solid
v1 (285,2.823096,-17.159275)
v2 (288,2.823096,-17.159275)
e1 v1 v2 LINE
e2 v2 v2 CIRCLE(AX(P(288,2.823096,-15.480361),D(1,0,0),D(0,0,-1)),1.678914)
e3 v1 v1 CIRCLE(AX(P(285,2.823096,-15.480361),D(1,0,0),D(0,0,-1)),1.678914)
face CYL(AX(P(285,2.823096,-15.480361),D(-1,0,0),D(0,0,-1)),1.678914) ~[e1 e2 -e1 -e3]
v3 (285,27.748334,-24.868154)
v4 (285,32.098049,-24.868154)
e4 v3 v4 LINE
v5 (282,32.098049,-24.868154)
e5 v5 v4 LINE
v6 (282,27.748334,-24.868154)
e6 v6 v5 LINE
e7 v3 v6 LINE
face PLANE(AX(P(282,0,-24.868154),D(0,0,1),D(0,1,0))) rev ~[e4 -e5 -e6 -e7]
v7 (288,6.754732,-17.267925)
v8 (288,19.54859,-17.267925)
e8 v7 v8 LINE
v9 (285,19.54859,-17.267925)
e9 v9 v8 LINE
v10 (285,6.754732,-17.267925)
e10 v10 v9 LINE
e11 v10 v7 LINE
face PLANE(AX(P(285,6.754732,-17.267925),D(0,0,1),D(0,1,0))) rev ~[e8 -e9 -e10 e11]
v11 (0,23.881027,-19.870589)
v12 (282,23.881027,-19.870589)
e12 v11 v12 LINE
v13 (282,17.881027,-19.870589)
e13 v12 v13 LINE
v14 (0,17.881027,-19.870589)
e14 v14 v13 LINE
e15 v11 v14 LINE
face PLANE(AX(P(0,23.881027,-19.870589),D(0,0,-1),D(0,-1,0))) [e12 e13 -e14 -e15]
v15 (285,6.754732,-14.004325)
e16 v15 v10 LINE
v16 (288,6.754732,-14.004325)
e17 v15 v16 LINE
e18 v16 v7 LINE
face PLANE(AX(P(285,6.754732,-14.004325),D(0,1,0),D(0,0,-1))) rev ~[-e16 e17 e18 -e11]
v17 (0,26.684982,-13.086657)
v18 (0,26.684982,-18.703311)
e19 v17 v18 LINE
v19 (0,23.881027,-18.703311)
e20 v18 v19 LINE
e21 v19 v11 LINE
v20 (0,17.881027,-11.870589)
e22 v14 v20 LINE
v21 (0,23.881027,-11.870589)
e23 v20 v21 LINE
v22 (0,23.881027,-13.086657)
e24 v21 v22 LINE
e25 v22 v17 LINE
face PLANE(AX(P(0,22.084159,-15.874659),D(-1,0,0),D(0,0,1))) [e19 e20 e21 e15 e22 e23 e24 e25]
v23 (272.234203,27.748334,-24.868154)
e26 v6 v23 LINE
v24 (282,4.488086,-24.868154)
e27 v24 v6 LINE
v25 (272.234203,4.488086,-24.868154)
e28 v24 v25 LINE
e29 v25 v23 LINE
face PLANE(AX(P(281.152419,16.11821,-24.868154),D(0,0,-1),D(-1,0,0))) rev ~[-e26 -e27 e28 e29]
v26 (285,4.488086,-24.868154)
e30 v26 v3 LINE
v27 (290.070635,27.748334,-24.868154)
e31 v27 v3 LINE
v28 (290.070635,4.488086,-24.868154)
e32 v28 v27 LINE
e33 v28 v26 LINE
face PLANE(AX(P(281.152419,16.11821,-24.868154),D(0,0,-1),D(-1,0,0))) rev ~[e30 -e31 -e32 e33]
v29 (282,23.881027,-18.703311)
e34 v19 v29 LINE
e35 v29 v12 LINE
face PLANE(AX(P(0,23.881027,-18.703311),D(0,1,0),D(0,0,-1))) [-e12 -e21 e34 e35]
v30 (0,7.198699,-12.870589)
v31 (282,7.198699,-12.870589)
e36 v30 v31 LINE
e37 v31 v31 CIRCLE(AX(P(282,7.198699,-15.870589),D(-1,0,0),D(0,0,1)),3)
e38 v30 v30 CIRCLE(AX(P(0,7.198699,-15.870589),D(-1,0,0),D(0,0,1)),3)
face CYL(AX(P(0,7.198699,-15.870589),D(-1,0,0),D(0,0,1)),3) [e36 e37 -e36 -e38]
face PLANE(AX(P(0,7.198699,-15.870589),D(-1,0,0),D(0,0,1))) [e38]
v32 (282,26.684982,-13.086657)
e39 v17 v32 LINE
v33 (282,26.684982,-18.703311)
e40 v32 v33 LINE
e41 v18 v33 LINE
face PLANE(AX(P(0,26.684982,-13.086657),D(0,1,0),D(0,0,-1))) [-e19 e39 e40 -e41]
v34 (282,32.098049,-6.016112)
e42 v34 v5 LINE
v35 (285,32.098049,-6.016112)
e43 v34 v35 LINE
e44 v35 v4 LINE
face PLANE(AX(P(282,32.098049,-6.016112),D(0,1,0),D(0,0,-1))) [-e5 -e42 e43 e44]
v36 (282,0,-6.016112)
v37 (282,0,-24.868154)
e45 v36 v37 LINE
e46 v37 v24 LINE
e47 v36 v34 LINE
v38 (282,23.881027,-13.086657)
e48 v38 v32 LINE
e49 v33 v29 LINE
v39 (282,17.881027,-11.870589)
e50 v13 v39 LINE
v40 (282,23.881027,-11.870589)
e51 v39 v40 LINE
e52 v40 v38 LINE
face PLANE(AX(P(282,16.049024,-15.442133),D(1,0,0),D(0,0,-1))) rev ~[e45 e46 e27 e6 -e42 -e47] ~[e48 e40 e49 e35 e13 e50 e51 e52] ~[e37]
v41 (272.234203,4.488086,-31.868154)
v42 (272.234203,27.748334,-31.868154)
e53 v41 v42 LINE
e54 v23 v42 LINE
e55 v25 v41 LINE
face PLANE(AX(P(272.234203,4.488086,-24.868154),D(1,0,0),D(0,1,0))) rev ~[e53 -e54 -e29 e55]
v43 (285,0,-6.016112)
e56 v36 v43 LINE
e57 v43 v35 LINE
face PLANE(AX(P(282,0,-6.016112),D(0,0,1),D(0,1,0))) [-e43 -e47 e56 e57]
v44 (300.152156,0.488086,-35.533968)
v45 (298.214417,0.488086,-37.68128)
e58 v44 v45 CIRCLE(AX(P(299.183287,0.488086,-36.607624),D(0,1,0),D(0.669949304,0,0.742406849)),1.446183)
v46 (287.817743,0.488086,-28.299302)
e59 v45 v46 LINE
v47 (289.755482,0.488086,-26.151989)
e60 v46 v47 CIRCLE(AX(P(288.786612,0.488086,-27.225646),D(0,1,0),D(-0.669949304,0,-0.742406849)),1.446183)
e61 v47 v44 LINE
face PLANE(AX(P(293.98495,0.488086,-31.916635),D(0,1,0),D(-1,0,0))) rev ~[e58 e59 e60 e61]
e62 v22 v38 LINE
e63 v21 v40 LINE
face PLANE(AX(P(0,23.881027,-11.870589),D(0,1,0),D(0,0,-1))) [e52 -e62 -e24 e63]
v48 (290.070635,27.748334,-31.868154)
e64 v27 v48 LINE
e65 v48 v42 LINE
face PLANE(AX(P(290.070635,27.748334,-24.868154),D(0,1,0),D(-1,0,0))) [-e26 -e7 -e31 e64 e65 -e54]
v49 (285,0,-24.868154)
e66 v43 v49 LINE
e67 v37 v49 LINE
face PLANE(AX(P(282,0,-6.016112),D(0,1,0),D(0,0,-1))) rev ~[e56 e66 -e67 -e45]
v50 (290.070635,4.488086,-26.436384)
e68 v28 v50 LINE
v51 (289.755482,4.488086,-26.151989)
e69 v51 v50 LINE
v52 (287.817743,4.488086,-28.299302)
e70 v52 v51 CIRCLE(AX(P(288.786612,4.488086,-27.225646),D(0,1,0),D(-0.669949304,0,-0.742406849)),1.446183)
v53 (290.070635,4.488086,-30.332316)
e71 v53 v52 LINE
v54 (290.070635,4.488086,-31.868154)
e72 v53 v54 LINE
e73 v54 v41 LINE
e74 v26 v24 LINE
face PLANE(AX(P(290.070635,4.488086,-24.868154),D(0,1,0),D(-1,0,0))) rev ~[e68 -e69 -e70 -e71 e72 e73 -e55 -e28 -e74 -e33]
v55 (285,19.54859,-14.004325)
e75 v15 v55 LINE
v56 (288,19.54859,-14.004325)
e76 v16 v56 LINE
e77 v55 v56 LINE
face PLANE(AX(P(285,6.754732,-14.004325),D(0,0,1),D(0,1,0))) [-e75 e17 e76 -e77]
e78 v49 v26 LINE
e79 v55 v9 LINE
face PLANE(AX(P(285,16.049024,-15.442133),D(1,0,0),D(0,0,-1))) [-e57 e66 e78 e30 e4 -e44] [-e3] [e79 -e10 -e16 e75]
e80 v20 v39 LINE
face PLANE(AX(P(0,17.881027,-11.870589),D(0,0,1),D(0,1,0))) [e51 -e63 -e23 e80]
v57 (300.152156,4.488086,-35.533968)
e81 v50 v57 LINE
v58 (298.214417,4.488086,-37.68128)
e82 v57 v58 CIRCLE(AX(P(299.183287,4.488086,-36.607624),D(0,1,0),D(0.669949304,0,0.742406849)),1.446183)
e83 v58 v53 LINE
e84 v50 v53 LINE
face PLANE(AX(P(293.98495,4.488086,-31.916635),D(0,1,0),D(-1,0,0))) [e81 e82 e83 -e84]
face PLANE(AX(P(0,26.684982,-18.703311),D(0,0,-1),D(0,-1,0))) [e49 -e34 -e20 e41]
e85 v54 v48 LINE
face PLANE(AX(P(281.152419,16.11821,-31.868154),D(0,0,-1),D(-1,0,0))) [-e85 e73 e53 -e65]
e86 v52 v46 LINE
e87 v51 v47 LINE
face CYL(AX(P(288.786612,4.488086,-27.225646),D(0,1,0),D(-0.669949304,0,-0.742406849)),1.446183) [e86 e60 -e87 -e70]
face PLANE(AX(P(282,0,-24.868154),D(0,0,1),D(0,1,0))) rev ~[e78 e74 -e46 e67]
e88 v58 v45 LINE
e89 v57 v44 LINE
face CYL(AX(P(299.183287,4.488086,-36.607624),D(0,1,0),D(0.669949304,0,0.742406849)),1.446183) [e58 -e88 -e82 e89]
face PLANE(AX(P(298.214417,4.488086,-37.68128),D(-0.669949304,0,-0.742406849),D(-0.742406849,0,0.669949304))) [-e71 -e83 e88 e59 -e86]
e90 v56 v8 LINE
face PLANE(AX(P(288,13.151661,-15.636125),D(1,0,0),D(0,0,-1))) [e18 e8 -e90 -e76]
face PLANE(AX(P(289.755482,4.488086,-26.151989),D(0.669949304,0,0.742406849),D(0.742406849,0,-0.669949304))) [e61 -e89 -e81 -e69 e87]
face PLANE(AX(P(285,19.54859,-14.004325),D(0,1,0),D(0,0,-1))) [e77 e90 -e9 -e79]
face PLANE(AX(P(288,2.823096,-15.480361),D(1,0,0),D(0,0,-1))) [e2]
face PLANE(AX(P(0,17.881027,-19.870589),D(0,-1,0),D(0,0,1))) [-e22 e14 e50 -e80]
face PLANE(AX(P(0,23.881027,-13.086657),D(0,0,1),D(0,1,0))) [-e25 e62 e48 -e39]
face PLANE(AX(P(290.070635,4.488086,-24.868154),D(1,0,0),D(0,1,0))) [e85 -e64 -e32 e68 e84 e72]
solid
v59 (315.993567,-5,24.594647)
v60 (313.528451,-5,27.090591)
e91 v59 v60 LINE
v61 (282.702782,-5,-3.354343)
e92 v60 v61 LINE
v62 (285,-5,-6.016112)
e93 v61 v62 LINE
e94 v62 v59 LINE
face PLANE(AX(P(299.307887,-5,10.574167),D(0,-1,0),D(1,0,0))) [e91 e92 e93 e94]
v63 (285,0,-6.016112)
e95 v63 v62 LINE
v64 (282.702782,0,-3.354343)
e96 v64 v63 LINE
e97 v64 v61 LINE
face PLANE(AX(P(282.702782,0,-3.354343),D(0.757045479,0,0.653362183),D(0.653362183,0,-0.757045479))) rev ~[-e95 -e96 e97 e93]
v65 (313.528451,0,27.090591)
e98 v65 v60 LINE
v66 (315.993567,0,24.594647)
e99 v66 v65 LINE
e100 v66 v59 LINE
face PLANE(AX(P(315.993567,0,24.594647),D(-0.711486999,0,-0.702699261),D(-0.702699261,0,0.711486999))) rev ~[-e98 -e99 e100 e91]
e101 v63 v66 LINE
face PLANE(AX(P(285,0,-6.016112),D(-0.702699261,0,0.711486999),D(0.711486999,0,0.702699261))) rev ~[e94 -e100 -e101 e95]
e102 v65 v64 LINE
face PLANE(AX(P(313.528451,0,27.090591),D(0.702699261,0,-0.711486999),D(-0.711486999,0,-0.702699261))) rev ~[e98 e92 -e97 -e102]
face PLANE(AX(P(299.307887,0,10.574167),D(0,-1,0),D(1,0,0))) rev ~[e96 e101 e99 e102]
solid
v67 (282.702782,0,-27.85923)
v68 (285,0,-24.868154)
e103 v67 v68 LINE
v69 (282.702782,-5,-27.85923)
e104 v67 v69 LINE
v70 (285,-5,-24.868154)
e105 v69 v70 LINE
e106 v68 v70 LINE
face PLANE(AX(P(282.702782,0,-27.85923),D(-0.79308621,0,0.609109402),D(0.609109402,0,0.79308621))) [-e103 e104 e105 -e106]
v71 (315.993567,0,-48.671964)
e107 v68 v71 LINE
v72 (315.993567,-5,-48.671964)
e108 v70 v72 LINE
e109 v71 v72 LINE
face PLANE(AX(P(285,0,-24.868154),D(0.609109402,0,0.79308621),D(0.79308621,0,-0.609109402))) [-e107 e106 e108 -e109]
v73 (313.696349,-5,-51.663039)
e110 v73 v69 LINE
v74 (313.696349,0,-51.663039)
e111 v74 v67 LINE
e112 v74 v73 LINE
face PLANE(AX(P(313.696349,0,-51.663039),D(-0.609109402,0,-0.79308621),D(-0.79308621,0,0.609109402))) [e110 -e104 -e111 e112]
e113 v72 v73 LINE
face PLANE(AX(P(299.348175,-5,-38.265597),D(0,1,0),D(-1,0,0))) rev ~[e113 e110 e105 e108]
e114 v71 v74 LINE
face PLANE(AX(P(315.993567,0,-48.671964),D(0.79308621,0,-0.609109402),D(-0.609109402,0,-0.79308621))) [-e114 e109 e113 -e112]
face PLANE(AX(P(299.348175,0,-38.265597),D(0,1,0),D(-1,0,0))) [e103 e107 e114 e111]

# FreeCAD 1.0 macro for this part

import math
import FreeCAD as App
import Part
import Sketcher
from FreeCAD import Vector


def add_polygon(sketch, points):
    """Adds a closed chain of lines whose ends are joined by coincident constraints."""
    first, n = sketch.GeometryCount, len(points)
    for a, b in zip(points, points[1:] + points[:1]):
        sketch.addGeometry(Part.LineSegment(App.Vector(*a, 0), App.Vector(*b, 0)), False)
    for i in range(n):
        sketch.addConstraint(Sketcher.Constraint("Coincident", first + i, 2, first + (i + 1) % n, 1))

doc = App.newDocument("Part")
params = doc.addObject("Spreadsheet::Sheet", "Params")
for row, (alias, value) in enumerate([
    ("sketch1_diameter", "6 mm"),
    ("pad1_length", "282 mm"),
    ("sketch2_width", "6 mm"),
    ("sketch2_height", "8 mm"),
    ("pad2_length", "282 mm"),
    ("pad3_length", "3 mm"),
    ("pad4_length", "7 mm"),
    ("pad5_length", "4 mm"),
    ("pad6_length", "3 mm"),
    ("pad7_length", "5 mm"),
    ("pad8_length", "5 mm"),
], start=1):
    params.set(f"A{row}", alias)
    params.set(f"B{row}", "=" + value)
    params.setAlias(f"B{row}", alias)

body = doc.addObject("PartDesign::Body", "Body")

sketch1 = body.newObject("Sketcher::SketchObject", "Sketch")
sketch1.AttachmentSupport = (doc.getObject("YZ_Plane"), [""])
sketch1.MapMode = "FlatFace"
sketch1.addGeometry(Part.Circle(Vector(7.2, -15.9, 0), Vector(0, 0, 1), 3), False)
sketch1.addConstraint([
    Sketcher.Constraint("Diameter", 0, 6.0),
    Sketcher.Constraint("DistanceX", -1, 1, 0, 3, 7.198699),
    Sketcher.Constraint("DistanceY", 0, 3, -1, 1, 15.870589),
])
sketch1.setExpression("Constraints[0]", "Params.sketch1_diameter")
pad1 = body.newObject("PartDesign::Pad", "Pad")
pad1.Profile = sketch1
pad1.setExpression("Length", "Params.pad1_length")
body2 = doc.addObject("PartDesign::Body", "Body001")

sketch2 = body2.newObject("Sketcher::SketchObject", "Sketch001")
sketch2.AttachmentSupport = (doc.getObject("YZ_Plane001"), [""])
sketch2.MapMode = "FlatFace"
add_polygon(sketch2, [(17.9, -19.9), (17.9, -11.9), (23.9, -11.9), (23.9, -13.1), (26.7, -13.1), (26.7, -18.7), (23.9, -18.7), (23.9, -19.9)])
sketch2.addConstraint([
    Sketcher.Constraint("Vertical", 0),
    Sketcher.Constraint("Horizontal", 1),
    Sketcher.Constraint("Vertical", 2),
    Sketcher.Constraint("Horizontal", 3),
    Sketcher.Constraint("Vertical", 4),
    Sketcher.Constraint("Horizontal", 5),
    Sketcher.Constraint("Vertical", 6),
    Sketcher.Constraint("Horizontal", 7),
    Sketcher.Constraint("Vertical", 2, 2, 5, 2),
    Sketcher.Constraint("DistanceX", 1, 1, 1, 2, 6.0),
    Sketcher.Constraint("DistanceY", 0, 1, 0, 2, 8.0),
    Sketcher.Constraint("DistanceY", 2, 2, 2, 1, 1.216069),
    Sketcher.Constraint("DistanceX", 3, 1, 3, 2, 2.803955),
    Sketcher.Constraint("DistanceY", 4, 2, 4, 1, 5.616654),
    Sketcher.Constraint("DistanceY", 0, 2, -1, 1, 11.870589),
    Sketcher.Constraint("DistanceX", -1, 1, 3, 2, 26.684982),
])
sketch2.setExpression("Constraints[17]", "Params.sketch2_width")
sketch2.setExpression("Constraints[18]", "Params.sketch2_height")
pad2 = body2.newObject("PartDesign::Pad", "Pad001")
pad2.Profile = sketch2
pad2.setExpression("Length", "Params.pad2_length")
body.AllowCompound = True
doc.recompute()

boolean = body.newObject("PartDesign::Boolean", "Boolean")
boolean.Type = "Fuse"
boolean.addObjects([body2])

sketch3 = body.newObject("Sketcher::SketchObject", "Sketch002")
sketch3.AttachmentSupport = (doc.getObject("YZ_Plane"), [""])
sketch3.MapMode = "FlatFace"
sketch3.AttachmentOffset = App.Placement(Vector(0, 0, 282), App.Rotation())
add_polygon(sketch3, [(32, -6), (0, -6), (0, -25), (32, -25)])
sketch3.addConstraint([
    Sketcher.Constraint("Horizontal", 0),
    Sketcher.Constraint("Vertical", 1),
    Sketcher.Constraint("Horizontal", 2),
    Sketcher.Constraint("Vertical", 3),
    Sketcher.Constraint("PointOnObject", 0, 2, -2),
    Sketcher.Constraint("DistanceX", 0, 2, 0, 1, 32.098049),
    Sketcher.Constraint("DistanceY", 1, 2, 1, 1, 18.852043),
    Sketcher.Constraint("DistanceY", 0, 2, -1, 1, 6.016112),
])
pad3 = body.newObject("PartDesign::Pad", "Pad002")
pad3.Profile = sketch3
pad3.setExpression("Length", "Params.pad3_length")

sketch4 = body.newObject("Sketcher::SketchObject", "Sketch003")
sketch4.AttachmentSupport = (doc.getObject("XY_Plane"), [""])
sketch4.MapMode = "FlatFace"
sketch4.AttachmentOffset = App.Placement(Vector(0, 0, -24.868154), App.Rotation())
add_polygon(sketch4, [(290, 28), (290, 4), (272, 4), (272, 28)])
sketch4.addConstraint([
    Sketcher.Constraint("Vertical", 0),
    Sketcher.Constraint("Horizontal", 1),
    Sketcher.Constraint("Vertical", 2),
    Sketcher.Constraint("Horizontal", 3),
    Sketcher.Constraint("DistanceX", 1, 2, 1, 1, 17.836432),
    Sketcher.Constraint("DistanceY", 0, 2, 0, 1, 23.260247),
    Sketcher.Constraint("DistanceX", -1, 1, 0, 2, 290.070635),
    Sketcher.Constraint("DistanceY", -1, 1, 0, 2, 4.488086),
])
pad4 = body.newObject("PartDesign::Pad", "Pad003")
pad4.Profile = sketch4
pad4.setExpression("Length", "Params.pad4_length")
pad4.Reversed = True

sketch5 = body.newObject("Sketcher::SketchObject", "Sketch004")
sketch5.AttachmentSupport = (doc.getObject("XZ_Plane"), [""])
sketch5.MapMode = "FlatFace"
sketch5.AttachmentOffset = App.Placement(Vector(0, 0, -4.488086), App.Rotation())
sketch5.addGeometry([
    Part.LineSegment(Vector(300.2, -35.5, 0), Vector(289.8, -26.2, 0)),
    Part.ArcOfCircle(Part.Circle(Vector(288.8, -27.2, 0), Vector(0, 0, 1), 1.4), math.radians(48), math.radians(228)),
    Part.LineSegment(Vector(287.8, -28.3, 0), Vector(298.2, -37.7, 0)),
    Part.ArcOfCircle(Part.Circle(Vector(299.2, -36.6, 0), Vector(0, 0, 1), 1.4), math.radians(-132), math.radians(48)),
], False)
sketch5.addConstraint([
    Sketcher.Constraint("Tangent", 0, 2, 1, 1),
    Sketcher.Constraint("Tangent", 1, 2, 2, 1),
    Sketcher.Constraint("Tangent", 2, 2, 3, 1),
    Sketcher.Constraint("Tangent", 3, 2, 0, 1),
    Sketcher.Constraint("Equal", 1, 3),
    Sketcher.Constraint("Radius", 1, 1.446183),
    Sketcher.Constraint("DistanceX", -1, 1, 0, 2, 289.755482),
    Sketcher.Constraint("DistanceY", 0, 2, -1, 1, 26.151989),
    Sketcher.Constraint("DistanceY", 2, 2, -1, 1, 37.68128),
    Sketcher.Constraint("DistanceY", 3, 3, 1, 3, 9.381978),
])
pad5 = body.newObject("PartDesign::Pad", "Pad004")
pad5.Profile = sketch5
pad5.setExpression("Length", "Params.pad5_length")

sketch6 = body.newObject("Sketcher::SketchObject", "Sketch005")
sketch6.AttachmentSupport = (doc.getObject("YZ_Plane"), [""])
sketch6.MapMode = "FlatFace"
sketch6.AttachmentOffset = App.Placement(Vector(0, 0, 285), App.Rotation())
sketch6.addGeometry(Part.Circle(Vector(2.8, -15.5, 0), Vector(0, 0, 1), 1.7), False)
add_polygon(sketch6, [(19.5, -14), (6.8, -14), (6.8, -17.3), (19.5, -17.3)])
sketch6.addConstraint([
    Sketcher.Constraint("Horizontal", 1),
    Sketcher.Constraint("Vertical", 2),
    Sketcher.Constraint("Horizontal", 3),
    Sketcher.Constraint("Vertical", 4),
    Sketcher.Constraint("Diameter", 0, 3.357828),
    Sketcher.Constraint("DistanceY", 2, 2, 2, 1, 3.2636),
    Sketcher.Constraint("DistanceX", 1, 2, 1, 1, 12.793858),
    Sketcher.Constraint("DistanceY", 0, 3, -1, 1, 15.480361),
    Sketcher.Constraint("DistanceX", -1, 1, 1, 2, 6.754732),
    Sketcher.Constraint("DistanceX", -1, 1, 0, 3, 2.823096),
    Sketcher.Constraint("DistanceY", 1, 2, -1, 1, 14.004325),
])
pad6 = body.newObject("PartDesign::Pad", "Pad005")
pad6.Profile = sketch6
pad6.setExpression("Length", "Params.pad6_length")
body3 = doc.addObject("PartDesign::Body", "Body002")

sketch7 = body3.newObject("Sketcher::SketchObject", "Sketch006")
sketch7.AttachmentSupport = (doc.getObject("XZ_Plane002"), [""])
sketch7.MapMode = "FlatFace"
add_polygon(sketch7, [(316, -48.7), (285, -24.9), (282.7, -27.9), (313.7, -51.7)])
sketch7.addConstraint([
    Sketcher.Constraint("Perpendicular", 0, 1),
    Sketcher.Constraint("Perpendicular", 1, 2),
    Sketcher.Constraint("Perpendicular", 2, 3),
    Sketcher.Constraint("DistanceX", -1, 1, 0, 2, 285.0),
    Sketcher.Constraint("DistanceX", -1, 1, 1, 2, 282.702782),
    Sketcher.Constraint("DistanceY", 1, 2, -1, 1, 27.85923),
    Sketcher.Constraint("DistanceX", -1, 1, 2, 2, 313.696349),
    Sketcher.Constraint("DistanceY", 2, 2, -1, 1, 51.663039),
])
pad7 = body3.newObject("PartDesign::Pad", "Pad006")
pad7.Profile = sketch7
pad7.setExpression("Length", "Params.pad7_length")
body4 = doc.addObject("PartDesign::Body", "Body003")

sketch8 = body4.newObject("Sketcher::SketchObject", "Sketch007")
sketch8.AttachmentSupport = (doc.getObject("XZ_Plane003"), [""])
sketch8.MapMode = "FlatFace"
add_polygon(sketch8, [(285, -6), (316, 24.6), (313.5, 27.1), (282.7, -3.4)])
sketch8.addConstraint([
    Sketcher.Constraint("Perpendicular", 0, 1),
    Sketcher.Constraint("Perpendicular", 1, 2),
    Sketcher.Constraint("DistanceX", -1, 1, 3, 2, 285.0),
    Sketcher.Constraint("DistanceX", -1, 1, 1, 2, 313.528451),
    Sketcher.Constraint("DistanceY", -1, 1, 1, 2, 27.090591),
    Sketcher.Constraint("DistanceX", -1, 1, 2, 2, 282.702782),
    Sketcher.Constraint("DistanceY", 3, 2, -1, 1, 6.016112),
    Sketcher.Constraint("DistanceY", 2, 2, 0, 2, 27.948991),
])
pad8 = body4.newObject("PartDesign::Pad", "Pad007")
pad8.Profile = sketch8
pad8.setExpression("Length", "Params.pad8_length")

doc.recompute()
